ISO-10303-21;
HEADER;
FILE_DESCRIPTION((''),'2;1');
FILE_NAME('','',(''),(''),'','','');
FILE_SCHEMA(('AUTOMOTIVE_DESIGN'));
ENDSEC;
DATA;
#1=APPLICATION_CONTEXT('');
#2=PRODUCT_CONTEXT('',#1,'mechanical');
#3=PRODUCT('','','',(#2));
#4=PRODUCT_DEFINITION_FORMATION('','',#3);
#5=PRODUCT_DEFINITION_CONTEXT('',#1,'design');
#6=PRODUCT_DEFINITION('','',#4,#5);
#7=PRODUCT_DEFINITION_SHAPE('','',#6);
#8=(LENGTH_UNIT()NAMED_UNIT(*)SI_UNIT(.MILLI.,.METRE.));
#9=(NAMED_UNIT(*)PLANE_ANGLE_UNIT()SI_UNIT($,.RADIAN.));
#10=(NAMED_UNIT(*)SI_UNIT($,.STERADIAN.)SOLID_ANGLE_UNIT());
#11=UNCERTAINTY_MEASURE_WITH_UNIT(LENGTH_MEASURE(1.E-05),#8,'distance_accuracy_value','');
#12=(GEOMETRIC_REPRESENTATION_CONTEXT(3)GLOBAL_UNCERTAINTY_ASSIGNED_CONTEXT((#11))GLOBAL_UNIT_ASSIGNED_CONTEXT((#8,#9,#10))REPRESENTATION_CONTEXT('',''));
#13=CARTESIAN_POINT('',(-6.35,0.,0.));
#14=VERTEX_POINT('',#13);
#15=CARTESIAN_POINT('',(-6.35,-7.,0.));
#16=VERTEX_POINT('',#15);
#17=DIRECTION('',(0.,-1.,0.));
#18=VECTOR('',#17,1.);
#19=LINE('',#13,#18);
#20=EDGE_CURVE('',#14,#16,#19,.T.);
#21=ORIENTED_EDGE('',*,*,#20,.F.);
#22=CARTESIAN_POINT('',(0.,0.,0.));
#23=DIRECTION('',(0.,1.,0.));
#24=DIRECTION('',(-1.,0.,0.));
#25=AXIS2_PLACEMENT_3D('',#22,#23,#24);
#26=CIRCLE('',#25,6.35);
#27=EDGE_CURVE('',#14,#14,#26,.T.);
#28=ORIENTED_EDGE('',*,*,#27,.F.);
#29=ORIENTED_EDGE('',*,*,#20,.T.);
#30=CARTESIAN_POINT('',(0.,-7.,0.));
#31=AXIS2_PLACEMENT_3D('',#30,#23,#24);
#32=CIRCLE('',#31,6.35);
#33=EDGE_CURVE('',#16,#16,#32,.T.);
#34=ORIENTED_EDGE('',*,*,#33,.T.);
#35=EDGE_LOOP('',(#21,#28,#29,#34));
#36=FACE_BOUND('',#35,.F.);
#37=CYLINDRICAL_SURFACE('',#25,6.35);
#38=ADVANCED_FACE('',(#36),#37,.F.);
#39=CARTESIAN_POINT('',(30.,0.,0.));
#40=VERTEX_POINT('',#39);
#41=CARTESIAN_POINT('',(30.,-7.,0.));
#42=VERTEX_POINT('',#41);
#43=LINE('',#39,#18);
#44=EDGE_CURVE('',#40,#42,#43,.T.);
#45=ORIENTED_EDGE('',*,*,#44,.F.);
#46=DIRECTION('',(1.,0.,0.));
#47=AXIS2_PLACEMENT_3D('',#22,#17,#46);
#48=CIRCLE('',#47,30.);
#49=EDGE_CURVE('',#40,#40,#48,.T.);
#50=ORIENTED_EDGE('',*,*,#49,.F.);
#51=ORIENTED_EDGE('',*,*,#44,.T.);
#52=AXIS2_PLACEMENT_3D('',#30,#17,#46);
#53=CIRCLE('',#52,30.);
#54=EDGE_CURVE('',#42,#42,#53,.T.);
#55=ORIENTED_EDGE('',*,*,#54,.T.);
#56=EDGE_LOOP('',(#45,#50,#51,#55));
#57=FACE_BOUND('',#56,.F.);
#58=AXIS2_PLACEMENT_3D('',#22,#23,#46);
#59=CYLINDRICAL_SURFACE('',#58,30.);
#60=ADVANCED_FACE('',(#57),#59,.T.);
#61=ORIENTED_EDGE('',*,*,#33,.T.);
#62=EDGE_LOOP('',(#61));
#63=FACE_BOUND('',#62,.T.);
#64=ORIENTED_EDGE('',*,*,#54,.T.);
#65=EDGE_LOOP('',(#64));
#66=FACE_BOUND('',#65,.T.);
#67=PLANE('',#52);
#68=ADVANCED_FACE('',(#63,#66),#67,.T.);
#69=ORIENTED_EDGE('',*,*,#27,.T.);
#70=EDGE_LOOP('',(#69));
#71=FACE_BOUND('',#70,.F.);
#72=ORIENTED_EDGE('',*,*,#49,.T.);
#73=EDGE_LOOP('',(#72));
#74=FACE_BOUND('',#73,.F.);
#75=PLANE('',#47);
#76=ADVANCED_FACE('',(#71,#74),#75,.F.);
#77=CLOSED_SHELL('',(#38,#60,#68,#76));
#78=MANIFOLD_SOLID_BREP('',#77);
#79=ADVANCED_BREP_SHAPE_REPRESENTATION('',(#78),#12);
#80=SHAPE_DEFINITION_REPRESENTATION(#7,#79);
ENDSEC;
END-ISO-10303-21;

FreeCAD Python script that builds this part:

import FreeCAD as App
import Part
import Sketcher
Q = App.Units.Quantity

doc = App.newDocument("Part")
body = doc.addObject("PartDesign::Body", "Body")

# Sketch on XZ plane
sketch1 = doc.addObject("Sketcher::SketchObject", "Sketch")
body.addObject(sketch1)
sketch1.AttachmentSupport = (doc.XZ_Plane, [""])
sketch1.MapMode = "FlatFace"
sketch1.addGeometry(Part.Circle(App.Vector(0, 0, 0), App.Vector(0, 0, 1), 30), False)
sketch1.addConstraint([
    Sketcher.Constraint("Coincident", 0, 3, -1, 1),
    Sketcher.Constraint("Diameter", 0, Q("60 mm")),
])
pad1 = doc.addObject("PartDesign::Pad", "Pad")
body.addObject(pad1)
pad1.Profile = sketch1
pad1.Length = 7

# Sketch on XZ plane
sketch2 = doc.addObject("Sketcher::SketchObject", "Sketch001")
body.addObject(sketch2)
sketch2.AttachmentSupport = (doc.XZ_Plane, [""])
sketch2.MapMode = "FlatFace"
sketch2.addGeometry(Part.Circle(App.Vector(0, 0, 0), App.Vector(0, 0, 1), 6), False)
sketch2.addConstraint([
    Sketcher.Constraint("Coincident", 0, 3, -1, 1),
    Sketcher.Constraint("Diameter", 0, Q("12.7 mm")),
])
pocket1 = doc.addObject("PartDesign::Pocket", "Pocket")
body.addObject(pocket1)
pocket1.Profile = sketch2
pocket1.Type = "ThroughAll"
pocket1.Reversed = True

doc.recompute()
